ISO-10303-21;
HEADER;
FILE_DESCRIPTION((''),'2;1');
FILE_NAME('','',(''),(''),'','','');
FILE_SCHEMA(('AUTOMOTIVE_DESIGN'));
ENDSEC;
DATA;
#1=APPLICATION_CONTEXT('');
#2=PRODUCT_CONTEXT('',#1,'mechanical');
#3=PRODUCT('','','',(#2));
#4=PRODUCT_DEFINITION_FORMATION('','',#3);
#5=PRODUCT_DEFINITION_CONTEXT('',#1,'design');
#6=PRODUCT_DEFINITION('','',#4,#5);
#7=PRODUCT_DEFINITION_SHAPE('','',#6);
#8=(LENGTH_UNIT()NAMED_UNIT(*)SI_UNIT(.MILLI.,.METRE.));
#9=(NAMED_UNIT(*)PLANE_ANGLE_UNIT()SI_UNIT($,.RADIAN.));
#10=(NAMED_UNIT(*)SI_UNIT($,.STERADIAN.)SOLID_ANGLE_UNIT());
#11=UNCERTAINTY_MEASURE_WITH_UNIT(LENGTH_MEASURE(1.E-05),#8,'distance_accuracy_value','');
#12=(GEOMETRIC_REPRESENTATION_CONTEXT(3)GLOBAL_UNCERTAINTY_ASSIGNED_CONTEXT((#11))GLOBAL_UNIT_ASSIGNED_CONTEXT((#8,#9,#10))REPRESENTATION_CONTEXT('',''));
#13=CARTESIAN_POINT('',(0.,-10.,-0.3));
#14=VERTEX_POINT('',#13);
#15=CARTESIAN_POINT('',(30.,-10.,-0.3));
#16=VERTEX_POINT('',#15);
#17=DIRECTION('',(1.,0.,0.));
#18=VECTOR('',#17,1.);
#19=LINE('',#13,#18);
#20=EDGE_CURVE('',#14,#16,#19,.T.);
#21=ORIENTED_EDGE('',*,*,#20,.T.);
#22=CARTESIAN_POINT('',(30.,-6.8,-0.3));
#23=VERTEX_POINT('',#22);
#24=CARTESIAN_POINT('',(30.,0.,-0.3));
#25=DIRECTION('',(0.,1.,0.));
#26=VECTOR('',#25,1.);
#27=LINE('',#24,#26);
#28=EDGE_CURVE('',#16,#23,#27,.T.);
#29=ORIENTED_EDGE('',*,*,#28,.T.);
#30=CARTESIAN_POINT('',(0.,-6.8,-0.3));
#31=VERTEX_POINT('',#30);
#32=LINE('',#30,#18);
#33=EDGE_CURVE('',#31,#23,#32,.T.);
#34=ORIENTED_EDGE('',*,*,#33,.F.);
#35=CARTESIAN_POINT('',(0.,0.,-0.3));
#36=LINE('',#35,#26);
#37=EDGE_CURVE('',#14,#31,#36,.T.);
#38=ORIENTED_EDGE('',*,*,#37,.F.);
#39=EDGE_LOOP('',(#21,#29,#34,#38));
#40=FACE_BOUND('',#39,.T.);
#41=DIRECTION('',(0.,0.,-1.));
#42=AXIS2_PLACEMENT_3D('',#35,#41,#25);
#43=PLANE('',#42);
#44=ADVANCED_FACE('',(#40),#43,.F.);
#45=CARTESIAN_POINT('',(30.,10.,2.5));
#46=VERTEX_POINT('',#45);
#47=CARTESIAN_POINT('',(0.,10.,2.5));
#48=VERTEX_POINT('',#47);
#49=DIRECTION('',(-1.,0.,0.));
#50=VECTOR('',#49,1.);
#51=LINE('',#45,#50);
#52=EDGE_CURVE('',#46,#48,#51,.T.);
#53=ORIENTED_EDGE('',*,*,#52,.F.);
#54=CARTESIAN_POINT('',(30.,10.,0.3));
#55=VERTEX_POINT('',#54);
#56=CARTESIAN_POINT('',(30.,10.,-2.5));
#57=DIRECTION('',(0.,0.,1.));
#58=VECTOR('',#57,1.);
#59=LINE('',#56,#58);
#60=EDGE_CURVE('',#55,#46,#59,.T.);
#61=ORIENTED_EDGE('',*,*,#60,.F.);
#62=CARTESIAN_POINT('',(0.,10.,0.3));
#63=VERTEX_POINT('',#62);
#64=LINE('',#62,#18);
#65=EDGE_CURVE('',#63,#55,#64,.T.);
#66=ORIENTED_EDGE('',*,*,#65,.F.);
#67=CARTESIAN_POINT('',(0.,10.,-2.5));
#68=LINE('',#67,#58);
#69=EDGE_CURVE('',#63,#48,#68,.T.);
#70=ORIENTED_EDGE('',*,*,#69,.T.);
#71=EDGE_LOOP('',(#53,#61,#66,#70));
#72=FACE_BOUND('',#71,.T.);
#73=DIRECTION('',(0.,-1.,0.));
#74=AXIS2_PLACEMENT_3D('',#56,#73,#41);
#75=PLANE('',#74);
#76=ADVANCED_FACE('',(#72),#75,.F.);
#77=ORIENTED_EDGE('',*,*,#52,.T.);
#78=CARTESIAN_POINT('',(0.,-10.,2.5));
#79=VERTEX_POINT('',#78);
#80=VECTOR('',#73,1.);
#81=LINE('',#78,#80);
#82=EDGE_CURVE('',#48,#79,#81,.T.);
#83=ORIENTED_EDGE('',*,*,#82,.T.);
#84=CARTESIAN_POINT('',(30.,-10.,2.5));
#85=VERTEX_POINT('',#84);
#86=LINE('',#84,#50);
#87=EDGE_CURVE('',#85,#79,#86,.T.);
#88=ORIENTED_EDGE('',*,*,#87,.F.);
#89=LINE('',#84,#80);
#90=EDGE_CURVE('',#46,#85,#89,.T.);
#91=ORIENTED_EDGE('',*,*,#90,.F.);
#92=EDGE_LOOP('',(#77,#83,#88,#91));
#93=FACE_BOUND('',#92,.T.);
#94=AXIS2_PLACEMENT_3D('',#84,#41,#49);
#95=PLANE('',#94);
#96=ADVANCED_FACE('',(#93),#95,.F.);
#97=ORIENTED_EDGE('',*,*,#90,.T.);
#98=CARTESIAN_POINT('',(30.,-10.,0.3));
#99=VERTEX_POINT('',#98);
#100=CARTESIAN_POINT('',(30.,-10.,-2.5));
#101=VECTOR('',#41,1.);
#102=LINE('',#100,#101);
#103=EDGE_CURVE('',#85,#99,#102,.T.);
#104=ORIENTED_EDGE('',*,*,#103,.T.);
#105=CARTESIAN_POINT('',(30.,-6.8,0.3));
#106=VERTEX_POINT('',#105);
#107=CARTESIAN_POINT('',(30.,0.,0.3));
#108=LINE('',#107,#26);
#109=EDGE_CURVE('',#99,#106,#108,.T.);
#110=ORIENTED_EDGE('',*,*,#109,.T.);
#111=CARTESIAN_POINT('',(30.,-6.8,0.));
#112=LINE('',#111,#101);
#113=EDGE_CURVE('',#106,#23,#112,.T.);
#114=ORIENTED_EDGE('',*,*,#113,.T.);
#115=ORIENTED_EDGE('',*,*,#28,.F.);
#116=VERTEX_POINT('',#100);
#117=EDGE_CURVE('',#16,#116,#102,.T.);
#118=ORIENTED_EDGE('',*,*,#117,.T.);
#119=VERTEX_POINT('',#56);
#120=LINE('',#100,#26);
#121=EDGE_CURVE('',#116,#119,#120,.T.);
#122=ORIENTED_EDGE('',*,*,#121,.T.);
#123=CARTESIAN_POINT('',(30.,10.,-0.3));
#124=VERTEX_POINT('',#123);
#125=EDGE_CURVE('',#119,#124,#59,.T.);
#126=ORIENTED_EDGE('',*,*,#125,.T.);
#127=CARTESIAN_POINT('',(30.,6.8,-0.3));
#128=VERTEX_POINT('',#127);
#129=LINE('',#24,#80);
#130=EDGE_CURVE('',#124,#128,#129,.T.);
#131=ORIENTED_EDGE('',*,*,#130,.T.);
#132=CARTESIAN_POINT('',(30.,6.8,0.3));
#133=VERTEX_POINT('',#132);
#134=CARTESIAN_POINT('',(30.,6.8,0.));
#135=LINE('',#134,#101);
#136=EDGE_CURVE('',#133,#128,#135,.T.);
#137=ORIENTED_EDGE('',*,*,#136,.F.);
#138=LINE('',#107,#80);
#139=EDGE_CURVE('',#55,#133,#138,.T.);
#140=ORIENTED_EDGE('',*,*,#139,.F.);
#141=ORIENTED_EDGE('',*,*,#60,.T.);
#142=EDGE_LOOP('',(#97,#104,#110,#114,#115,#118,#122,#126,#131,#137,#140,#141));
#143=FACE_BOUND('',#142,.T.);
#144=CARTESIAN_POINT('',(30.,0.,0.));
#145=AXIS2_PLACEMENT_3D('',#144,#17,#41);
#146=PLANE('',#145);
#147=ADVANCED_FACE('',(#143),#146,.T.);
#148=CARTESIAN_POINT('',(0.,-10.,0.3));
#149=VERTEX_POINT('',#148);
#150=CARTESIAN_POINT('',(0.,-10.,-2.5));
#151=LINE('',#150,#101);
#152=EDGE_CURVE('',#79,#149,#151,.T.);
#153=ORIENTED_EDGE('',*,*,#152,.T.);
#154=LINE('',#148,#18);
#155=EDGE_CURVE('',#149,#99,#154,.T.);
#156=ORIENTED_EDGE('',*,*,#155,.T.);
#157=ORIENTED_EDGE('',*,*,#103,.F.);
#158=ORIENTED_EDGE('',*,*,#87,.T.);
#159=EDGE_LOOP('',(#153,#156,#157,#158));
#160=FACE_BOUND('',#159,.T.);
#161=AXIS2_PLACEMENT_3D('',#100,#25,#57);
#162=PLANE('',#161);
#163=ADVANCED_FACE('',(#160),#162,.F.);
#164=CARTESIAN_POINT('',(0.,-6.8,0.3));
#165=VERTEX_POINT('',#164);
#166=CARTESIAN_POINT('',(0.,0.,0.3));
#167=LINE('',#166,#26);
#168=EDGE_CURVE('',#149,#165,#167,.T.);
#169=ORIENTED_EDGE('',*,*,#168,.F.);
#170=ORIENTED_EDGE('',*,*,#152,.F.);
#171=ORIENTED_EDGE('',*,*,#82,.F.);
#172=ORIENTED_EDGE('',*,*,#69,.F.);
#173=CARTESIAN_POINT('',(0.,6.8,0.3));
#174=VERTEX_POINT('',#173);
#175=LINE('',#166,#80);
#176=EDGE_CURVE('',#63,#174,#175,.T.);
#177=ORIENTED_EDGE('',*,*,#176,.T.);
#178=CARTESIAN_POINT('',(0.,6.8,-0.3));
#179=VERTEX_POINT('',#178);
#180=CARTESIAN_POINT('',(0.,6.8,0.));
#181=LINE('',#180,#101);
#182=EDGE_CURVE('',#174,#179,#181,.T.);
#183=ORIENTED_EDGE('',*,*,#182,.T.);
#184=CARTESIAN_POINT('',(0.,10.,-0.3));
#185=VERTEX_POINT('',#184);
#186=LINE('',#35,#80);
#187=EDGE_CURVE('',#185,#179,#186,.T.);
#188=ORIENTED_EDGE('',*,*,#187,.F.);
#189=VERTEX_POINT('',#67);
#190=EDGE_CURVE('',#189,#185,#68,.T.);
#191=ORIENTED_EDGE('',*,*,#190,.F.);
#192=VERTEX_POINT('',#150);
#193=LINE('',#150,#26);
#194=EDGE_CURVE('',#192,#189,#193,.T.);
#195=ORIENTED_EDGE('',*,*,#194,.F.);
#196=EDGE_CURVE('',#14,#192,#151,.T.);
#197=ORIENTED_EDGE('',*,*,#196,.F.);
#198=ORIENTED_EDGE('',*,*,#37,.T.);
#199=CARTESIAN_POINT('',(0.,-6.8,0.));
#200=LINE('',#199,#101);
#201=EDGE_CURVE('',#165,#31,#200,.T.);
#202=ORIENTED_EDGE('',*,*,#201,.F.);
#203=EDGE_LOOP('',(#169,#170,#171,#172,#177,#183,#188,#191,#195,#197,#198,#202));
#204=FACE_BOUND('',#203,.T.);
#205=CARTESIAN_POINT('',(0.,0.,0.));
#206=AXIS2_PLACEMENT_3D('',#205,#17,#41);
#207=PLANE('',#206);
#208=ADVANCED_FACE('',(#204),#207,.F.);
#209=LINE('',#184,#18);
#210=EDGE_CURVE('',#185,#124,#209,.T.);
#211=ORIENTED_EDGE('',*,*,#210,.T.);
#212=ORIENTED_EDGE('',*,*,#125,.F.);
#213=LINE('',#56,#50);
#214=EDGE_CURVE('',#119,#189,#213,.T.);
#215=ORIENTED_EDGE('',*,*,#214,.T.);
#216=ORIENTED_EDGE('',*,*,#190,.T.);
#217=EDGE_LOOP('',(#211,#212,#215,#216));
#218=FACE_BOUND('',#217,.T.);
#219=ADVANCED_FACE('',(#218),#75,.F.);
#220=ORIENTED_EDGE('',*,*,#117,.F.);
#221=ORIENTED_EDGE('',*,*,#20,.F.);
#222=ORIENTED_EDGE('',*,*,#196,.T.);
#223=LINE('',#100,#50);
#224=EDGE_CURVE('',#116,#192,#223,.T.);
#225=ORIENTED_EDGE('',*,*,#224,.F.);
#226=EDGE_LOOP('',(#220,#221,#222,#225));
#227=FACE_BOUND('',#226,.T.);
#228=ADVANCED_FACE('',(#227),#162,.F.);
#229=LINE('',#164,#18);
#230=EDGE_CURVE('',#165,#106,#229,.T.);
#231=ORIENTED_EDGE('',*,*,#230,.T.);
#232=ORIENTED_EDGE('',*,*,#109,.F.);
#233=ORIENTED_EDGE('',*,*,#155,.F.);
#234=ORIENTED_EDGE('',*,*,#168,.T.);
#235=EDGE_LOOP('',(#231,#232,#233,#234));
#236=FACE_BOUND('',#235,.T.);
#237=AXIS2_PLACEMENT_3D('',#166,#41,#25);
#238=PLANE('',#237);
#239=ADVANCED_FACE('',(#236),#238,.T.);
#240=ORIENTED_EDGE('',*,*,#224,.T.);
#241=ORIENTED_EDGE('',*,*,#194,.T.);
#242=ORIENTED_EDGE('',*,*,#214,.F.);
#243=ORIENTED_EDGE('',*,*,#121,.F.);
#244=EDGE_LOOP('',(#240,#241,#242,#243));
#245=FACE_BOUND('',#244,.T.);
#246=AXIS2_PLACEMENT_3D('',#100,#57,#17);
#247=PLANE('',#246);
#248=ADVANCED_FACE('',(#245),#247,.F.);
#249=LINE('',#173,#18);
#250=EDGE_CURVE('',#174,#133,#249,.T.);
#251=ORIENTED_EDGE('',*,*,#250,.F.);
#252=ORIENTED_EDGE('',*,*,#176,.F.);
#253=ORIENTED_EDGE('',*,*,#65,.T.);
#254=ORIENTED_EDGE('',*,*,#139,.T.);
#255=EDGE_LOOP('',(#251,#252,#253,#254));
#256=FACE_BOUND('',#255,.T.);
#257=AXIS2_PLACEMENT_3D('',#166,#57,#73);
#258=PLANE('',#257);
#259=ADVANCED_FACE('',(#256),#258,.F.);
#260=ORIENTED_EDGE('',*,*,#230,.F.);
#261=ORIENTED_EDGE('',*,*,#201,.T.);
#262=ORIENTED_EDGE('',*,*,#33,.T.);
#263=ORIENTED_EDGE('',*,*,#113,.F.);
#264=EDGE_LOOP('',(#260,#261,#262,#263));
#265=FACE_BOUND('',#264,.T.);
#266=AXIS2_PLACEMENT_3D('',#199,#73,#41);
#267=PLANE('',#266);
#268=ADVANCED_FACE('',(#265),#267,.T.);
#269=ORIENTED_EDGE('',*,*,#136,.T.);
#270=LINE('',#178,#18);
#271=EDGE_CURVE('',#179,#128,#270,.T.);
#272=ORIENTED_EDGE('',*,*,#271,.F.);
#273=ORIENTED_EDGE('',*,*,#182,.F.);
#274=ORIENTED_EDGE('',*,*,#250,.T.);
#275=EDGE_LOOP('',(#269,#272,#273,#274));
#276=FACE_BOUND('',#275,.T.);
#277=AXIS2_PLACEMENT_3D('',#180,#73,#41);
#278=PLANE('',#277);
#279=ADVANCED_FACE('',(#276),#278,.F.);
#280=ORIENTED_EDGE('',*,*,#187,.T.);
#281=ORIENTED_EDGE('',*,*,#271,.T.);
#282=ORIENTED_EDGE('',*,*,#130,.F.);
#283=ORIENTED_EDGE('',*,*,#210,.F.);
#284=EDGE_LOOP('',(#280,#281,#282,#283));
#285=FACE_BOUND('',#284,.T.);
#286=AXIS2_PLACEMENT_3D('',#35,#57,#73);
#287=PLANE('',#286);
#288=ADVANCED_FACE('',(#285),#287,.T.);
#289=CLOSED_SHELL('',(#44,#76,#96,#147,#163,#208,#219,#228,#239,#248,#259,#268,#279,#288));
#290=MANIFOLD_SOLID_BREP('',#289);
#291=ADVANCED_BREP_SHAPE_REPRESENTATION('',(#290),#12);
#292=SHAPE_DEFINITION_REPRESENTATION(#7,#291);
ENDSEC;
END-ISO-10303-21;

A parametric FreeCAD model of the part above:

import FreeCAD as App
import Part
import Sketcher


def add_polygon(sketch, points):
    """Adds a closed chain of lines whose ends are joined by coincident constraints."""
    first, n = sketch.GeometryCount, len(points)
    for a, b in zip(points, points[1:] + points[:1]):
        sketch.addGeometry(Part.LineSegment(App.Vector(*a, 0), App.Vector(*b, 0)), False)
    for i in range(n):
        sketch.addConstraint(Sketcher.Constraint("Coincident", first + i, 2, first + (i + 1) % n, 1))

doc = App.newDocument("Part")
body = doc.addObject("PartDesign::Body", "Body")

# Sketch on YZ plane
sketch1 = doc.addObject("Sketcher::SketchObject", "Sketch")
body.addObject(sketch1)
sketch1.AttachmentSupport = (doc.YZ_Plane, [""])
sketch1.MapMode = "FlatFace"
add_polygon(sketch1, [(10, 2.5), (-10, 2.5), (-10, -2.5), (10, -2.5)])  # lines 0-3
sketch1.addConstraint(Sketcher.Constraint("Horizontal", 0))
sketch1.addConstraint(Sketcher.Constraint("Vertical", 1))
sketch1.addConstraint(Sketcher.Constraint("Horizontal", 2))
sketch1.addConstraint(Sketcher.Constraint("Vertical", 3))
sketch1.addConstraint(Sketcher.Constraint("Symmetric", 0, 2, 2, 2, -1, 1))
sketch1.addConstraint(Sketcher.Constraint("DistanceX", 0, 2, 0, 1, 20.0))
sketch1.addConstraint(Sketcher.Constraint("DistanceY", 1, 2, 1, 1, 5.0))
pad1 = doc.addObject("PartDesign::Pad", "Pad")
body.addObject(pad1)
pad1.Profile = sketch1
pad1.Length = 30

# Sketch on YZ plane
sketch2 = doc.addObject("Sketcher::SketchObject", "Sketch001")
body.addObject(sketch2)
sketch2.AttachmentSupport = (doc.YZ_Plane, [""])
sketch2.MapMode = "FlatFace"
sketch2.AttachmentOffset = App.Placement(App.Vector(0, 0, 30), App.Rotation())
add_polygon(sketch2, [(6.8, -0.3), (10, -0.3), (10, 0.3), (6.8, 0.3)])  # lines 0-3
sketch2.addConstraint(Sketcher.Constraint("Horizontal", 0))
sketch2.addConstraint(Sketcher.Constraint("Vertical", 1))
sketch2.addConstraint(Sketcher.Constraint("Horizontal", 2))
sketch2.addConstraint(Sketcher.Constraint("Vertical", 3))
sketch2.addConstraint(Sketcher.Constraint("DistanceX", 0, 1, 0, 2, 3.2))
sketch2.addConstraint(Sketcher.Constraint("DistanceY", 1, 1, 1, 2, 0.6))
sketch2.addConstraint(Sketcher.Constraint("DistanceX", -1, 1, 0, 2, 10.0))
sketch2.addConstraint(Sketcher.Constraint("DistanceY", 0, 2, -1, 1, 0.3))
pocket1 = doc.addObject("PartDesign::Pocket", "Pocket")
body.addObject(pocket1)
pocket1.Profile = sketch2
pocket1.Type = "ThroughAll"
doc.recompute()

mirrored = doc.addObject("PartDesign::Mirrored", "Mirrored")
body.addObject(mirrored)
mirrored.Originals = [pocket1]
mirrored.MirrorPlane = (doc.XZ_Plane, [""])
body.Tip = mirrored

doc.recompute()
